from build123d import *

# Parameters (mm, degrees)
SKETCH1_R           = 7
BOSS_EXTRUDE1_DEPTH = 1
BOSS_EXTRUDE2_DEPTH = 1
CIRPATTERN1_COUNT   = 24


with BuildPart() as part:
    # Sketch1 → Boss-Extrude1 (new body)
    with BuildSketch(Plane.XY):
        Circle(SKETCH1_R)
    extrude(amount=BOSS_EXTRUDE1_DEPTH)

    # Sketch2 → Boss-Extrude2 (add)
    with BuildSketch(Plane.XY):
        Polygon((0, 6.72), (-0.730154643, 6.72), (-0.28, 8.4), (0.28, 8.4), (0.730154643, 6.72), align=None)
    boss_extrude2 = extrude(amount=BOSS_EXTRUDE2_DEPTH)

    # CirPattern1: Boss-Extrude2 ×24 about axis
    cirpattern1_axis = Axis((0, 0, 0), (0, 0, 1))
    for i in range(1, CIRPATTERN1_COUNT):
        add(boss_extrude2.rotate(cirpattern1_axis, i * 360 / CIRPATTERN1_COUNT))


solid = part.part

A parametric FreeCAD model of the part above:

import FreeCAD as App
import Part
import Sketcher
from FreeCAD import Vector
Q = App.Units.Quantity

doc = App.newDocument("Part")
body = doc.addObject("PartDesign::Body", "Body")

# Sketch on XY plane
sketch1 = doc.addObject("Sketcher::SketchObject", "Sketch")
body.addObject(sketch1)
sketch1.AttachmentSupport = (doc.XY_Plane, [""])
sketch1.MapMode = "FlatFace"
sketch1.addGeometry(Part.Circle(Vector(0, 0, 0), Vector(0, 0, 1), 7), False)
sketch1.addConstraint([
    Sketcher.Constraint("Coincident", 0, 3, -1, 1),
    Sketcher.Constraint("Diameter", 0, 14.0),
])
pad1 = doc.addObject("PartDesign::Pad", "Pad")
body.addObject(pad1)
pad1.Profile = sketch1
pad1.Length = 1

# Sketch on XY plane
sketch2 = doc.addObject("Sketcher::SketchObject", "Sketch001")
body.addObject(sketch2)
sketch2.AttachmentSupport = (doc.XY_Plane, [""])
sketch2.MapMode = "FlatFace"
sketch2.addGeometry([
    Part.LineSegment(Vector(-0.7, 6.7, 0), Vector(0.7, 6.7, 0)),
    Part.LineSegment(Vector(0.7, 6.7, 0), Vector(0.3, 8.4, 0)),
    Part.LineSegment(Vector(0.3, 8.4, 0), Vector(-0.3, 8.4, 0)),
    Part.LineSegment(Vector(-0.3, 8.4, 0), Vector(-0.7, 6.7, 0)),
], False)
sketch2.addConstraint([
    Sketcher.Constraint("Coincident", 0, 2, 1, 1),
    Sketcher.Constraint("Coincident", 1, 2, 2, 1),
    Sketcher.Constraint("Coincident", 2, 2, 3, 1),
    Sketcher.Constraint("Coincident", 3, 2, 0, 1),
    Sketcher.Constraint("Horizontal", 0),
    Sketcher.Constraint("Horizontal", 2),
    Sketcher.Constraint("Equal", 1, 3),
    Sketcher.Constraint("Angle", 1, Q("105 deg")),
    Sketcher.Constraint("DistanceX", 2, 2, 2, 1, 0.56),
    Sketcher.Constraint("DistanceY", -1, 1, 1, 2, 8.4),
    Sketcher.Constraint("DistanceY", -1, 1, 0, 2, 6.72),
    Sketcher.Constraint("DistanceX", -1, 1, 1, 2, 0.28),
])
pad2 = doc.addObject("PartDesign::Pad", "Pad001")
body.addObject(pad2)
pad2.Profile = sketch2
pad2.Length = 1
doc.recompute()

polarpattern = doc.addObject("PartDesign::PolarPattern", "PolarPattern")
body.addObject(polarpattern)
polarpattern.Originals = [pad2]
polarpattern.Axis = (doc.Z_Axis, [""])
polarpattern.Angle = 360
polarpattern.Occurrences = 24
body.Tip = polarpattern

doc.recompute()
